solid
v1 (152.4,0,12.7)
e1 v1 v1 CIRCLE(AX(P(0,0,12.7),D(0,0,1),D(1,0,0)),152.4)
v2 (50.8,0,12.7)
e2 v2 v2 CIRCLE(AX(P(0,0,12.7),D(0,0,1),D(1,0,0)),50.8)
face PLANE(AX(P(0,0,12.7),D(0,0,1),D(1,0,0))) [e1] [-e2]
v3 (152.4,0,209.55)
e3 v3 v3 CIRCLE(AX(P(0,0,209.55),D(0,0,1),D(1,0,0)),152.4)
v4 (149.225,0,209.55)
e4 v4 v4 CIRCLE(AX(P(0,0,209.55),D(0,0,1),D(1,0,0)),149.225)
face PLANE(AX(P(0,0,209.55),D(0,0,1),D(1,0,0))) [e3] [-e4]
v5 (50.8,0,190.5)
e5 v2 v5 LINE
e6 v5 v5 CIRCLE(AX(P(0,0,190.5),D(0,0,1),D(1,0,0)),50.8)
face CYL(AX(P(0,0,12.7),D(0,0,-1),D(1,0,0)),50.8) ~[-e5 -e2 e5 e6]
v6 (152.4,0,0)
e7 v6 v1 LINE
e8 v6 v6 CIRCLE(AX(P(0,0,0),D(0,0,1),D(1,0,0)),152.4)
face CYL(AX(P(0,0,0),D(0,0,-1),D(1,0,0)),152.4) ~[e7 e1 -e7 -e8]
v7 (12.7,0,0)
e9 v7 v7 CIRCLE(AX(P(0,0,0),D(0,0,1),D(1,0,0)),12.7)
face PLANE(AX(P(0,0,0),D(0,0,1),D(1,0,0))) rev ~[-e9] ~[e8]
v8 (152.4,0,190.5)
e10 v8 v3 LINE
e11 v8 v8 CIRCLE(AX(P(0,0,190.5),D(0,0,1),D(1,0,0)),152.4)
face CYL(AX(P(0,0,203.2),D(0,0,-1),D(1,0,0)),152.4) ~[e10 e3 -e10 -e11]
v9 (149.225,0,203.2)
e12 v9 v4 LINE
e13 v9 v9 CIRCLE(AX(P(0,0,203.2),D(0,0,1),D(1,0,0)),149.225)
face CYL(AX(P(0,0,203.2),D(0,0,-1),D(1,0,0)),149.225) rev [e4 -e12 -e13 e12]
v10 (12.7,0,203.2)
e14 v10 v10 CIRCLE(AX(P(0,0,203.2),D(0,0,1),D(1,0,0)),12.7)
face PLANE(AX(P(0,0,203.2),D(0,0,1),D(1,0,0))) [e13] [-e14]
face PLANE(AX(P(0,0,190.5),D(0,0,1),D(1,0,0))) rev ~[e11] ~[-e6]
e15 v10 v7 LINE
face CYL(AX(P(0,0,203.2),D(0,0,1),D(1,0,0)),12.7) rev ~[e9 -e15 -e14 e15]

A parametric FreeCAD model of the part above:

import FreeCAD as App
import Part
import Sketcher
from FreeCAD import Vector
Q = App.Units.Quantity

doc = App.newDocument("Part")
params = doc.addObject("Spreadsheet::Sheet", "Params")
for row, (alias, value) in enumerate([
    ("sketch1_diameter", "12 in"),
    ("pad1_length", "0.5 in"),
    ("sketch2_diameter", "4 in"),
    ("pad2_length", "7 in"),
    ("sketch3_diameter", "12 in"),
    ("pad3_length", "0.5 in"),
    ("sketch4_diameter", "12 in"),
    ("sketch4_diameter2", "11.75 in"),
    ("pad4_length", "0.25 in"),
    ("sketch5_diameter", "1 in"),
    ("pocket1_length", "18 in"),
], start=1):
    params.set(f"A{row}", alias)
    params.set(f"B{row}", "=" + value)
    params.setAlias(f"B{row}", alias)

body = doc.addObject("PartDesign::Body", "Body")

sketch1 = body.newObject("Sketcher::SketchObject", "Sketch")
sketch1.AttachmentSupport = (doc.getObject("XY_Plane"), [""])
sketch1.MapMode = "FlatFace"
sketch1.addGeometry(Part.Circle(Vector(0, 0, 0), Vector(0, 0, 1), 152), False)
sketch1.addConstraint([
    Sketcher.Constraint("Coincident", 0, 3, -1, 1),
    Sketcher.Constraint("Diameter", 0, Q("12 in")),
])
sketch1.setExpression("Constraints[1]", "Params.sketch1_diameter")
pad1 = body.newObject("PartDesign::Pad", "Pad")
pad1.Profile = sketch1
pad1.setExpression("Length", "Params.pad1_length")

sketch2 = body.newObject("Sketcher::SketchObject", "Sketch001")
sketch2.AttachmentSupport = (doc.getObject("XY_Plane"), [""])
sketch2.MapMode = "FlatFace"
sketch2.AttachmentOffset = App.Placement(Vector(0, 0, 0.5 * 25.4), App.Rotation())
sketch2.addGeometry(Part.Circle(Vector(0, 0, 0), Vector(0, 0, 1), 51), False)
sketch2.addConstraint([
    Sketcher.Constraint("Coincident", 0, 3, -1, 1),
    Sketcher.Constraint("Diameter", 0, Q("4 in")),
])
sketch2.setExpression("Constraints[1]", "Params.sketch2_diameter")
pad2 = body.newObject("PartDesign::Pad", "Pad001")
pad2.Profile = sketch2
pad2.setExpression("Length", "Params.pad2_length")

sketch3 = body.newObject("Sketcher::SketchObject", "Sketch002")
sketch3.AttachmentSupport = (doc.getObject("XY_Plane"), [""])
sketch3.MapMode = "FlatFace"
sketch3.AttachmentOffset = App.Placement(Vector(0, 0, 7.5 * 25.4), App.Rotation())
sketch3.addGeometry(Part.Circle(Vector(0, 0, 0), Vector(0, 0, 1), 152), False)
sketch3.addConstraint([
    Sketcher.Constraint("Coincident", 0, 3, -1, 1),
    Sketcher.Constraint("Diameter", 0, Q("12 in")),
])
sketch3.setExpression("Constraints[1]", "Params.sketch3_diameter")
pad3 = body.newObject("PartDesign::Pad", "Pad002")
pad3.Profile = sketch3
pad3.setExpression("Length", "Params.pad3_length")

sketch4 = body.newObject("Sketcher::SketchObject", "Sketch003")
sketch4.AttachmentSupport = (doc.getObject("XY_Plane"), [""])
sketch4.MapMode = "FlatFace"
sketch4.AttachmentOffset = App.Placement(Vector(0, 0, 8 * 25.4), App.Rotation())
sketch4.addGeometry([
    Part.Circle(Vector(0, 0, 0), Vector(0, 0, 1), 152),
    Part.Circle(Vector(0, 0, 0), Vector(0, 0, 1), 149),
], False)
sketch4.addConstraint([
    Sketcher.Constraint("Coincident", 0, 3, -1, 1),
    Sketcher.Constraint("Coincident", 1, 3, -1, 1),
    Sketcher.Constraint("Diameter", 0, Q("12 in")),
    Sketcher.Constraint("Diameter", 1, Q("11.75 in")),
])
sketch4.setExpression("Constraints[2]", "Params.sketch4_diameter")
sketch4.setExpression("Constraints[3]", "Params.sketch4_diameter2")
pad4 = body.newObject("PartDesign::Pad", "Pad003")
pad4.Profile = sketch4
pad4.setExpression("Length", "Params.pad4_length")

sketch5 = body.newObject("Sketcher::SketchObject", "Sketch004")
sketch5.AttachmentSupport = (doc.getObject("XY_Plane"), [""])
sketch5.MapMode = "FlatFace"
sketch5.AttachmentOffset = App.Placement(Vector(0, 0, 8 * 25.4), App.Rotation())
sketch5.addGeometry(Part.Circle(Vector(0, 0, 0), Vector(0, 0, 1), 13), False)
sketch5.addConstraint([
    Sketcher.Constraint("Coincident", 0, 3, -1, 1),
    Sketcher.Constraint("Diameter", 0, Q("1 in")),
])
sketch5.setExpression("Constraints[1]", "Params.sketch5_diameter")
pocket1 = body.newObject("PartDesign::Pocket", "Pocket")
pocket1.Profile = sketch5
pocket1.setExpression("Length", "Params.pocket1_length")

doc.recompute()
